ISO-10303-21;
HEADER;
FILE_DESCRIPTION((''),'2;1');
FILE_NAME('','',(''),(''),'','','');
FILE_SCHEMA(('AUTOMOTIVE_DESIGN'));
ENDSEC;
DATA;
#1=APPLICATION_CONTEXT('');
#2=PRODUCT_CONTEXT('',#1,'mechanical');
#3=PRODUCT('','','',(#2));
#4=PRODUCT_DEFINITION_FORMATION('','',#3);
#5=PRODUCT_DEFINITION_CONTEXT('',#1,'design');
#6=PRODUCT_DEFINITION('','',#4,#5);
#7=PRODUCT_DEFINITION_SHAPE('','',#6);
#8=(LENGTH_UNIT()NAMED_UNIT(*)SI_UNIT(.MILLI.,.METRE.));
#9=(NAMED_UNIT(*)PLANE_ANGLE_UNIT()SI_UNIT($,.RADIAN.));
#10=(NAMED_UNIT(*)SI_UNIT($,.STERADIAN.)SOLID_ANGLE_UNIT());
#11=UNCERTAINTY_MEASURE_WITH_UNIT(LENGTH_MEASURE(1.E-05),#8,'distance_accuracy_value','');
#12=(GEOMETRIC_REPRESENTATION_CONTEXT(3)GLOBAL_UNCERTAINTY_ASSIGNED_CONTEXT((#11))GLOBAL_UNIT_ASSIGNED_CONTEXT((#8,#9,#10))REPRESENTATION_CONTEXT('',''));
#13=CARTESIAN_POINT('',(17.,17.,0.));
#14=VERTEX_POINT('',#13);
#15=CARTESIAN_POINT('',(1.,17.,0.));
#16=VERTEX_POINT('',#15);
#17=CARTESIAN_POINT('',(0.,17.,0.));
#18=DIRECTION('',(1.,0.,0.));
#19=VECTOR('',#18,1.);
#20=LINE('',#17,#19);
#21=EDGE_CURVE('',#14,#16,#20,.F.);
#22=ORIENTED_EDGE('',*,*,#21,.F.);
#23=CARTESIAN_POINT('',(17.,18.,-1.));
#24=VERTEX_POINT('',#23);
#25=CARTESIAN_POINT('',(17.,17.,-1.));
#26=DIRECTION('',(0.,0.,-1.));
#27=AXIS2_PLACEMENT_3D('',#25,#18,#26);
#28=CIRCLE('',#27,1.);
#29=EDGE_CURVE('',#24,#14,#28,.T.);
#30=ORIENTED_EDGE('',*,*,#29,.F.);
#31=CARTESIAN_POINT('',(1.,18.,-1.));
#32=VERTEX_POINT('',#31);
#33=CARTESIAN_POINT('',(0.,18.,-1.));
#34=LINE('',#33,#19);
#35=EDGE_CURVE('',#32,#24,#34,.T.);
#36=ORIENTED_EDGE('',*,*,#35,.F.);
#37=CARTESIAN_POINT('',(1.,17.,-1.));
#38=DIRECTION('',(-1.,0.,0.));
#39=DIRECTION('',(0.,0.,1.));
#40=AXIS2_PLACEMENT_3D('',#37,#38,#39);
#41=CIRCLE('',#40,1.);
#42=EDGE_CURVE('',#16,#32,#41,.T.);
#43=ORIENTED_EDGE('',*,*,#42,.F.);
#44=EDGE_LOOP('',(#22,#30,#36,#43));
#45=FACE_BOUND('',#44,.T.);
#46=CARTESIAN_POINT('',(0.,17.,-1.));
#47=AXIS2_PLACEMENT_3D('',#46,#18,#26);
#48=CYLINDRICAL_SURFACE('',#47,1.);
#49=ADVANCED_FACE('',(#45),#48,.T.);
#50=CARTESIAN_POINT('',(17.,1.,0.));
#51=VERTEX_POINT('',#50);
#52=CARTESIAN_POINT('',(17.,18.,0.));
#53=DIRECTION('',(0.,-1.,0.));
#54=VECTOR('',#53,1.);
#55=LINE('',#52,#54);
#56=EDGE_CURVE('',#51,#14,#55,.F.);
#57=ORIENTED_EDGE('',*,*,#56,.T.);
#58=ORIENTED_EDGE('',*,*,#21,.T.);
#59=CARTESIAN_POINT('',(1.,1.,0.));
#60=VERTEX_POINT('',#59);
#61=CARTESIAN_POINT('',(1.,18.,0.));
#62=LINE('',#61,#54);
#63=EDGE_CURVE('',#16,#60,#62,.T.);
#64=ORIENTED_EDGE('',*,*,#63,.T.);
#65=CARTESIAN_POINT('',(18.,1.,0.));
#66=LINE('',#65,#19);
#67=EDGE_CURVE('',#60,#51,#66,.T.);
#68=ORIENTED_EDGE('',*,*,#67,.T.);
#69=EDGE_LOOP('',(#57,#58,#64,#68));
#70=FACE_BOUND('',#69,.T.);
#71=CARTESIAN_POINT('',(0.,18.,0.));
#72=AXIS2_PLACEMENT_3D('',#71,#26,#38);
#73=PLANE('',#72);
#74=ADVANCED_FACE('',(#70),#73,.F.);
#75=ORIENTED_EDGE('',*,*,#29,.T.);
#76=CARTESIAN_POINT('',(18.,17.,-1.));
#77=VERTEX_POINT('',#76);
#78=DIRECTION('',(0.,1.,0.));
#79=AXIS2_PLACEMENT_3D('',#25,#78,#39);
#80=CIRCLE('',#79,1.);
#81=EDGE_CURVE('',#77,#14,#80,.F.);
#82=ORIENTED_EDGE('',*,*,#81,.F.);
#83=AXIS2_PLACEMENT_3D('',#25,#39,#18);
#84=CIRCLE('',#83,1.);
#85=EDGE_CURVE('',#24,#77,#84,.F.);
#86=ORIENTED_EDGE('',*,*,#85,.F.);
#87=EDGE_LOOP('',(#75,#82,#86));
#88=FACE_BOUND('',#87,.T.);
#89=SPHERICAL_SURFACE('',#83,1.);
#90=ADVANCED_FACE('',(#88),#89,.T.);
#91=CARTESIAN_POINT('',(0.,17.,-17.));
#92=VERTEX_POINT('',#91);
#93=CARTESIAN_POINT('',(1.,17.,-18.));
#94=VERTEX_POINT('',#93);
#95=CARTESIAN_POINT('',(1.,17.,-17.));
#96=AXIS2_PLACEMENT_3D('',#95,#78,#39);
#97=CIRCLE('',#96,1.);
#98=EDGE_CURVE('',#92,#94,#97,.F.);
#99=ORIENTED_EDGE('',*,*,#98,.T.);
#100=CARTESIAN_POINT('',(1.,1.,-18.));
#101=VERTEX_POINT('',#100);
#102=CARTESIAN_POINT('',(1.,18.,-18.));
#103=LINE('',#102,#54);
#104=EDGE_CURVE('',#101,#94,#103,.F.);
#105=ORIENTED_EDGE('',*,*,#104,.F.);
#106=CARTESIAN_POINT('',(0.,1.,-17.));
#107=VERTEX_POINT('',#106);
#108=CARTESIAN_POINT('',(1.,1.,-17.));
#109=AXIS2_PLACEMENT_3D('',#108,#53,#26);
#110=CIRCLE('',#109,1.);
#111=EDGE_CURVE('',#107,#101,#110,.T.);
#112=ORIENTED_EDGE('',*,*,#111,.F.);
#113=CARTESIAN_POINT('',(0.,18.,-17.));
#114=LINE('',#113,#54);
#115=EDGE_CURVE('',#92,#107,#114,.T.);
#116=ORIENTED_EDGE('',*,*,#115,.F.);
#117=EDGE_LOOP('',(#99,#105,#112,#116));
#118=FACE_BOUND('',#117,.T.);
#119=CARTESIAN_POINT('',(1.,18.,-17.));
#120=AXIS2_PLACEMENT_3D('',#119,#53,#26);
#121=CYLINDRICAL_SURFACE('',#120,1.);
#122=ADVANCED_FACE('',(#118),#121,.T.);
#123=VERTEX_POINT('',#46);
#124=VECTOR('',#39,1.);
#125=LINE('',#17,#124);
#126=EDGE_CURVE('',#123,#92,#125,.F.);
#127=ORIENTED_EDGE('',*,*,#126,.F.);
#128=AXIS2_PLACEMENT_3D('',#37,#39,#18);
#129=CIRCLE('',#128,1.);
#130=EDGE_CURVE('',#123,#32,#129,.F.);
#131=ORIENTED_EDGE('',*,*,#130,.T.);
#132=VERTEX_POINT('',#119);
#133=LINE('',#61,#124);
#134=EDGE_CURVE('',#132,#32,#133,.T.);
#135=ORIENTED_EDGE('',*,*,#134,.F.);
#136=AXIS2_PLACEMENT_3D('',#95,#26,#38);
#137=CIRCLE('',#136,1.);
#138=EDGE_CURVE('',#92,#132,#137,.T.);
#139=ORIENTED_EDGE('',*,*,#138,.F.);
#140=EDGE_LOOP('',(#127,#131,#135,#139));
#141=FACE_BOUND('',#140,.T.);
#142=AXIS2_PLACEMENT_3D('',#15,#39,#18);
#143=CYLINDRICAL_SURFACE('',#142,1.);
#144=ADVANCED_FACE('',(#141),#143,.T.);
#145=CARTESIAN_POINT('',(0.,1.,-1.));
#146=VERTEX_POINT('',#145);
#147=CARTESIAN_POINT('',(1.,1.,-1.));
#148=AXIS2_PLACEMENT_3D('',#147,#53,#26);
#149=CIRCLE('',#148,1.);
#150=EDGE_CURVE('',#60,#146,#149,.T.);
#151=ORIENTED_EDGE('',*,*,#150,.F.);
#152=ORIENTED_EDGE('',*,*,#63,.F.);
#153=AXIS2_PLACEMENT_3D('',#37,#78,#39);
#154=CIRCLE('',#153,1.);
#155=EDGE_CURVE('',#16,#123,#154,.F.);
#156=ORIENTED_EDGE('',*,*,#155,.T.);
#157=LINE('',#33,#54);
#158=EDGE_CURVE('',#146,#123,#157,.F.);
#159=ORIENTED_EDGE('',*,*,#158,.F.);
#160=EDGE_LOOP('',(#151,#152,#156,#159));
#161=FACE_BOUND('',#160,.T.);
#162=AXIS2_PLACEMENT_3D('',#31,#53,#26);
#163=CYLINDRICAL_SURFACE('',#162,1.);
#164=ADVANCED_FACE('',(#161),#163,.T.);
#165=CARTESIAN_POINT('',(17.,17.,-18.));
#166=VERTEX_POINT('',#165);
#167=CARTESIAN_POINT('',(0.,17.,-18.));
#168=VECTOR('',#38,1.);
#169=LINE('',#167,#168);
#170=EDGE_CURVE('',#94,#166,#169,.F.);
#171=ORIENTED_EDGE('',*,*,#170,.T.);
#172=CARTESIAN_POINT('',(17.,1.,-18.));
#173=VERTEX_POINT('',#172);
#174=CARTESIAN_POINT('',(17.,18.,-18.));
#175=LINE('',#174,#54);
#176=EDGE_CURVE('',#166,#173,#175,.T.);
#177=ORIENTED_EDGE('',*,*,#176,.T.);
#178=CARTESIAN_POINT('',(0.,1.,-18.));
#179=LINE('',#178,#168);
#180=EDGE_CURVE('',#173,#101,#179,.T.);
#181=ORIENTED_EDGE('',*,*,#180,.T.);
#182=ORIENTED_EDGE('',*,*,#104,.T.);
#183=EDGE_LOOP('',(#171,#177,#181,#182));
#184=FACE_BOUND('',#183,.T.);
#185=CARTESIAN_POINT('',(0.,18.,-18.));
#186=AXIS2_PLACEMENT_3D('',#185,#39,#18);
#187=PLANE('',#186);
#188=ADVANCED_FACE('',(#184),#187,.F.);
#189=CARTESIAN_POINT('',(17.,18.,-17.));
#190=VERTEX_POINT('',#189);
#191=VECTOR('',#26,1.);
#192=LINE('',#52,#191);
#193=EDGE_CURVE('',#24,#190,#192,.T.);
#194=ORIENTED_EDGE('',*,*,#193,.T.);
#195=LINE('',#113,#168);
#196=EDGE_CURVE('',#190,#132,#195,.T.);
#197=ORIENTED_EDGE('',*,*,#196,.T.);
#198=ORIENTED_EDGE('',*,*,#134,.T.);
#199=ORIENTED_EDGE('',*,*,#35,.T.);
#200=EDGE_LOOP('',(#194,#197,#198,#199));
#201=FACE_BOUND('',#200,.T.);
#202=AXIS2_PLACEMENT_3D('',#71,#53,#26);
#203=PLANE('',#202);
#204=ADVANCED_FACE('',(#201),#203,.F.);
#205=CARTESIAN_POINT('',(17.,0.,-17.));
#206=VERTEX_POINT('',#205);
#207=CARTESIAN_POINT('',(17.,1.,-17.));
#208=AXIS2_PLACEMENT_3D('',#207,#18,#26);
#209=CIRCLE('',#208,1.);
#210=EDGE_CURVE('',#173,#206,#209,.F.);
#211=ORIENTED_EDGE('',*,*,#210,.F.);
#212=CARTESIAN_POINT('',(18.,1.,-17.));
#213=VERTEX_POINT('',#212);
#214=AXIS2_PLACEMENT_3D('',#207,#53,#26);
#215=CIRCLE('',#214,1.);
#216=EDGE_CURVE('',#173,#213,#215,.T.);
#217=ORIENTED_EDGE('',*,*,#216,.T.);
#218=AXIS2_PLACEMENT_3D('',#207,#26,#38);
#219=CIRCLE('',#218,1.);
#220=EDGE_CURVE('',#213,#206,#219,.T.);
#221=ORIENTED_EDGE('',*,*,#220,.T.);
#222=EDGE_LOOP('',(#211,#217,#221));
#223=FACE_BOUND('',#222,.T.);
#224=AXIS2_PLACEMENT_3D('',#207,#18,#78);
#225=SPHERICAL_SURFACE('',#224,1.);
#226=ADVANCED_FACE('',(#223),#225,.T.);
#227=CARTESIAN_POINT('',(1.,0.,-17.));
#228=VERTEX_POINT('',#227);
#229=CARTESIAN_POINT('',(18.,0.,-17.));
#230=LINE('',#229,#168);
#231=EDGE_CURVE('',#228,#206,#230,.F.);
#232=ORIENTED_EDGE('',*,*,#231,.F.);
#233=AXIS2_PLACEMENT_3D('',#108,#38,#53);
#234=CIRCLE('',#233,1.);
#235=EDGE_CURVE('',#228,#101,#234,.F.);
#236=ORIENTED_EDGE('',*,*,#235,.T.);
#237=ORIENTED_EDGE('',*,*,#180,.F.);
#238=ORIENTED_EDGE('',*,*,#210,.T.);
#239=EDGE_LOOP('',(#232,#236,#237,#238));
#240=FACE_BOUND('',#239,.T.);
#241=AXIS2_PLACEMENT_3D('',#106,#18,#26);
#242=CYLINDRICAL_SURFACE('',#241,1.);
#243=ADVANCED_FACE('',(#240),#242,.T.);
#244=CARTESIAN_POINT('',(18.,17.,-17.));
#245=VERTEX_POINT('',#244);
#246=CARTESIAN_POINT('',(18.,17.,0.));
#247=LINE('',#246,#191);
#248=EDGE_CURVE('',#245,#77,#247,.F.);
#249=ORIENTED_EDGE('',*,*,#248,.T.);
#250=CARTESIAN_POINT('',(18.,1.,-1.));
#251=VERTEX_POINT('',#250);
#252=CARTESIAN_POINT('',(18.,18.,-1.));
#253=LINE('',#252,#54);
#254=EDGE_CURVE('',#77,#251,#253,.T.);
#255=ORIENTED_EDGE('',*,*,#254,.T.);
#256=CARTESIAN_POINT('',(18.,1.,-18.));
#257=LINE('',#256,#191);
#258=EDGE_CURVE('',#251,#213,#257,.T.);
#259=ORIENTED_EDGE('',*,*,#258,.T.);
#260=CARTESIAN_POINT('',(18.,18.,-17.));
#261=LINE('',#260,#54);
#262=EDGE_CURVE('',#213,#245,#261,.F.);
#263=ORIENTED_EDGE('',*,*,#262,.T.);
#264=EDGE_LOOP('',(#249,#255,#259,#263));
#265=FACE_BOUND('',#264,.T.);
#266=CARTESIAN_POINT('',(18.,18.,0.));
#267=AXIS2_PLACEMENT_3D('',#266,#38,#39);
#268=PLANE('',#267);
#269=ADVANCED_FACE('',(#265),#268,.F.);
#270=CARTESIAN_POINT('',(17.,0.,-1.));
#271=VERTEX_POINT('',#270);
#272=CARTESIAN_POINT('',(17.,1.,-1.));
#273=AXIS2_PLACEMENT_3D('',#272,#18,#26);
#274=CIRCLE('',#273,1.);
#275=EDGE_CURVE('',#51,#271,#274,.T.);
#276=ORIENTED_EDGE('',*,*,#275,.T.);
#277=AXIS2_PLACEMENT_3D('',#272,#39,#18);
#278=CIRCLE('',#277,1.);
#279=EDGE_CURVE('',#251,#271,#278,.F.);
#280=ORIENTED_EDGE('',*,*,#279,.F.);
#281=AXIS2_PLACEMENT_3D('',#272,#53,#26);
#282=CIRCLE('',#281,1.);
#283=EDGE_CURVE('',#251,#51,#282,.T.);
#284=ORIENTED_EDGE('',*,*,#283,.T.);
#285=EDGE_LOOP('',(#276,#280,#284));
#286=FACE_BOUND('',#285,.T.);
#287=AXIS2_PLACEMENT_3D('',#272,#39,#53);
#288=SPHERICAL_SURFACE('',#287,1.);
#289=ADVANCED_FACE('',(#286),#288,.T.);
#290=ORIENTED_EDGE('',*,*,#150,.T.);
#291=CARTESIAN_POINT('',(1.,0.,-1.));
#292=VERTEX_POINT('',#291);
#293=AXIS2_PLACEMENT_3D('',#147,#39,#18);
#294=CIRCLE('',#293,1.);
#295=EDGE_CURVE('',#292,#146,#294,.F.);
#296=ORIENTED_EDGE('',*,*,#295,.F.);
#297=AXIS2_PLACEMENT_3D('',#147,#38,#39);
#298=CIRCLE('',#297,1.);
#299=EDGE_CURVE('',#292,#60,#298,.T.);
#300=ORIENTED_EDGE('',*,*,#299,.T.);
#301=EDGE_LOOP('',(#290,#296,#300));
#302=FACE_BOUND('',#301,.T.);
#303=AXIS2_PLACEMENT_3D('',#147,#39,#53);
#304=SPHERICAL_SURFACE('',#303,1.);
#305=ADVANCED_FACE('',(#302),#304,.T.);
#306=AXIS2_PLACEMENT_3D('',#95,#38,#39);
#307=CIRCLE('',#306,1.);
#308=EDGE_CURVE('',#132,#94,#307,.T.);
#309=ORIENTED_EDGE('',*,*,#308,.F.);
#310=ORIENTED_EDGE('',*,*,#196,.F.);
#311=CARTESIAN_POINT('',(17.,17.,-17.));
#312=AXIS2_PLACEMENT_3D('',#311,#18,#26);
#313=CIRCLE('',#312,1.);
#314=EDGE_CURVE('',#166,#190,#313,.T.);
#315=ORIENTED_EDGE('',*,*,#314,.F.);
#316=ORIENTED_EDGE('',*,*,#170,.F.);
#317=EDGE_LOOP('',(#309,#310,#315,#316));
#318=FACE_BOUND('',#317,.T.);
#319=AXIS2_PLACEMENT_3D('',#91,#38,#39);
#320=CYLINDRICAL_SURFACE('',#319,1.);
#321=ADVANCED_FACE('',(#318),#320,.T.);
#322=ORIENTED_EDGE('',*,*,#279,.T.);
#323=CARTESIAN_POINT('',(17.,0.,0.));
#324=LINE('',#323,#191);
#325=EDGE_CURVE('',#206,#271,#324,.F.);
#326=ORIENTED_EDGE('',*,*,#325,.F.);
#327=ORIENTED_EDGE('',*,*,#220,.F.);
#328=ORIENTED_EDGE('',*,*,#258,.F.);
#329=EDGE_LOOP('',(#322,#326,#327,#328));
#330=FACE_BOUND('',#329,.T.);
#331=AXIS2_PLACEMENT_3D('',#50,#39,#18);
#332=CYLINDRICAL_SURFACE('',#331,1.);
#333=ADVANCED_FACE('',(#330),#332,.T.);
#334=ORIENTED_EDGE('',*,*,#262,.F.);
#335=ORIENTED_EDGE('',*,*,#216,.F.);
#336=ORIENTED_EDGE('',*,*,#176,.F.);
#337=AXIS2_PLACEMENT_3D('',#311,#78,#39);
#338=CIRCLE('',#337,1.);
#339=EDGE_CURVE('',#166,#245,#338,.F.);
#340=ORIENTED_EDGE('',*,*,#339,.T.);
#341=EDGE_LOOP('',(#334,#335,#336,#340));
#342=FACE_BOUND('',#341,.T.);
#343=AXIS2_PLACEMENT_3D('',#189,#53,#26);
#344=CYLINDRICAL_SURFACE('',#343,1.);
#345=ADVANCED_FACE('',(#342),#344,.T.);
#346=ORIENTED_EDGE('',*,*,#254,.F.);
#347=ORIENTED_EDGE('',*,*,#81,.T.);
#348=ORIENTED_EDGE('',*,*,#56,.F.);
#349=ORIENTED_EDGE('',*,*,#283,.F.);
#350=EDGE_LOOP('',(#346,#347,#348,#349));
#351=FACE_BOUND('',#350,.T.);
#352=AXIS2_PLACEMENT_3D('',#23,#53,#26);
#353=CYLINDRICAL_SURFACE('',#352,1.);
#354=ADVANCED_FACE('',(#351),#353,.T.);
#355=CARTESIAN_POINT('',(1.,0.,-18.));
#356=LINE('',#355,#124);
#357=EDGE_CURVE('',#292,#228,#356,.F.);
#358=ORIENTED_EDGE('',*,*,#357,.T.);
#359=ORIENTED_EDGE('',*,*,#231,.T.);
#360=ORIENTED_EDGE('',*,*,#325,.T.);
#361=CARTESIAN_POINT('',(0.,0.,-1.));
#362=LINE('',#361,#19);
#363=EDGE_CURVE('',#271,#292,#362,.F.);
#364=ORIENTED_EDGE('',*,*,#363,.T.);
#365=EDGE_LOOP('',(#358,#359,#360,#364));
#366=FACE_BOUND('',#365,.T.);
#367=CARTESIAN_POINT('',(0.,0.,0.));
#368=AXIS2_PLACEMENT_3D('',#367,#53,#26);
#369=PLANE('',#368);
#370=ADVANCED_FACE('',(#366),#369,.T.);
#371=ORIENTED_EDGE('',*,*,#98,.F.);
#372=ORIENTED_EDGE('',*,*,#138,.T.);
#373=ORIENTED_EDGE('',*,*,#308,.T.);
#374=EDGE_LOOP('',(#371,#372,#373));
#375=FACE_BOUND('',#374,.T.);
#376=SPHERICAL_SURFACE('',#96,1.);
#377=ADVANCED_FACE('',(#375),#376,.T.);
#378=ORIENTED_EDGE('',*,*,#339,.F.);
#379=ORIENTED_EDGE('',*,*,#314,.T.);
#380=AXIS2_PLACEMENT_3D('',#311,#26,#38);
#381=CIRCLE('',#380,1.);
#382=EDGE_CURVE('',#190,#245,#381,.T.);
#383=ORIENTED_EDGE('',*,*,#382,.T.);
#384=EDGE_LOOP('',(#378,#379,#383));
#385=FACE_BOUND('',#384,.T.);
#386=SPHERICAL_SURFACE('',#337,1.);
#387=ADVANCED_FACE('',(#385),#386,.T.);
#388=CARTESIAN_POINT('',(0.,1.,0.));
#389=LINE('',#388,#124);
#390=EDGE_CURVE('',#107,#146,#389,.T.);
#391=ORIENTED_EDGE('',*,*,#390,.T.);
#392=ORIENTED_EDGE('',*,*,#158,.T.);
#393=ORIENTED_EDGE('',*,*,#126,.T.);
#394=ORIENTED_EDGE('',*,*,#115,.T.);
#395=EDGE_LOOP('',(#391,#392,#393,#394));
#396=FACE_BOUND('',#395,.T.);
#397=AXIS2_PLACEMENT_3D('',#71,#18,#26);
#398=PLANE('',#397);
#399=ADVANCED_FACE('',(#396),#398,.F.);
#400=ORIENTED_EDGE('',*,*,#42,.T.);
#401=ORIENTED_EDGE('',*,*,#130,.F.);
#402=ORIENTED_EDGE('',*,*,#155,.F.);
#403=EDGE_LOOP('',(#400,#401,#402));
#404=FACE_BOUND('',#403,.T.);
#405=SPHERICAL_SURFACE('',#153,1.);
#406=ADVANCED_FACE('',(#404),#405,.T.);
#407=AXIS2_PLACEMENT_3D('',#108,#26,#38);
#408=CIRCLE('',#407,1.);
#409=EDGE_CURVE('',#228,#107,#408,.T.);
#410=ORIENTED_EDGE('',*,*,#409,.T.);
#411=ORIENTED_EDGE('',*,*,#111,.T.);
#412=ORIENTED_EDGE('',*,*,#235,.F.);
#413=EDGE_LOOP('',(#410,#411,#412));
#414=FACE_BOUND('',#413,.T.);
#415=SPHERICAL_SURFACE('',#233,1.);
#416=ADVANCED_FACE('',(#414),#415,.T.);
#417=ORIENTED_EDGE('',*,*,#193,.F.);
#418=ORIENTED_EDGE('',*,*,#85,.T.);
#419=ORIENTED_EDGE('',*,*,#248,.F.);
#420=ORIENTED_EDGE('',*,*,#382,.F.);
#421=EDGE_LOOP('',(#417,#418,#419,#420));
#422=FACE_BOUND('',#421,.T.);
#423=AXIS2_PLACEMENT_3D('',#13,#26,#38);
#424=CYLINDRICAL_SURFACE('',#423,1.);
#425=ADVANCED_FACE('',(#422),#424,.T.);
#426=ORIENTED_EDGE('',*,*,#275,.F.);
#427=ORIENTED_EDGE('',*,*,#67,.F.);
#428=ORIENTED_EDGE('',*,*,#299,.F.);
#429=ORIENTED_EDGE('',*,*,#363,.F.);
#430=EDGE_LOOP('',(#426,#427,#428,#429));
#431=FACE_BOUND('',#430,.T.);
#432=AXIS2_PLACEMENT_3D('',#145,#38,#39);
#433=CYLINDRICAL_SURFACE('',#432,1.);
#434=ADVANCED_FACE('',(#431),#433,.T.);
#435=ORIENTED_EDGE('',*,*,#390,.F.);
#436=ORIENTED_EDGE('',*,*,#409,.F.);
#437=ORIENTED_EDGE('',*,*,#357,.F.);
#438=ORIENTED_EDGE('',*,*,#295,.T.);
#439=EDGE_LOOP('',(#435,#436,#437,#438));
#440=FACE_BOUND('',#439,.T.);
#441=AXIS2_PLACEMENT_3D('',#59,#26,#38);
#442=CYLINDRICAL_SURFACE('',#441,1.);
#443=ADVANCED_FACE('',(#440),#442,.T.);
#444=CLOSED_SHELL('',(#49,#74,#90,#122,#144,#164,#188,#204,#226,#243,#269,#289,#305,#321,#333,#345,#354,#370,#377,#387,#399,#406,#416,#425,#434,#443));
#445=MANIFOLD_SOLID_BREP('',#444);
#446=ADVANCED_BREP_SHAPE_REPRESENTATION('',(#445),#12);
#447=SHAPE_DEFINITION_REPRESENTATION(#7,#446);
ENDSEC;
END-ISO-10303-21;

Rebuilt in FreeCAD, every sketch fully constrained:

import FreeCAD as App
import Part
import Sketcher
Q = App.Units.Quantity


def add_polygon(sketch, points):
    """Adds a closed chain of lines whose ends are joined by coincident constraints."""
    first, n = sketch.GeometryCount, len(points)
    for a, b in zip(points, points[1:] + points[:1]):
        sketch.addGeometry(Part.LineSegment(App.Vector(*a, 0), App.Vector(*b, 0)), False)
    for i in range(n):
        sketch.addConstraint(Sketcher.Constraint("Coincident", first + i, 2, first + (i + 1) % n, 1))

doc = App.newDocument("Part")
body = doc.addObject("PartDesign::Body", "Body")

# Sketch on XZ plane
sketch1 = body.newObject("Sketcher::SketchObject", "Sketch")
sketch1.AttachmentSupport = (doc.getObject("XZ_Plane"), [""])
sketch1.MapMode = "FlatFace"
add_polygon(sketch1, [(0, -18), (0, 0), (18, 0), (18, -18)])  # lines 0-3
sketch1.addConstraint(Sketcher.Constraint("Vertical", 0))
sketch1.addConstraint(Sketcher.Constraint("Horizontal", 1))
sketch1.addConstraint(Sketcher.Constraint("Vertical", 2))
sketch1.addConstraint(Sketcher.Constraint("Horizontal", 3))
sketch1.addConstraint(Sketcher.Constraint("Coincident", 0, 2, -1, 1))
sketch1.addConstraint(Sketcher.Constraint("Equal", 3, 0))
sketch1.addConstraint(Sketcher.Constraint("DistanceX", 1, 1, 1, 2, Q("18 mm")))
pad1 = body.newObject("PartDesign::Pad", "Pad")
pad1.Profile = sketch1
pad1.Length = 18
pad1.Reversed = True
doc.recompute()

fillet = body.newObject("PartDesign::Fillet", "Fillet")
fillet.Base = (pad1, ["Edge1"])
fillet.UseAllEdges = True
fillet.Radius = 1

doc.recompute()
